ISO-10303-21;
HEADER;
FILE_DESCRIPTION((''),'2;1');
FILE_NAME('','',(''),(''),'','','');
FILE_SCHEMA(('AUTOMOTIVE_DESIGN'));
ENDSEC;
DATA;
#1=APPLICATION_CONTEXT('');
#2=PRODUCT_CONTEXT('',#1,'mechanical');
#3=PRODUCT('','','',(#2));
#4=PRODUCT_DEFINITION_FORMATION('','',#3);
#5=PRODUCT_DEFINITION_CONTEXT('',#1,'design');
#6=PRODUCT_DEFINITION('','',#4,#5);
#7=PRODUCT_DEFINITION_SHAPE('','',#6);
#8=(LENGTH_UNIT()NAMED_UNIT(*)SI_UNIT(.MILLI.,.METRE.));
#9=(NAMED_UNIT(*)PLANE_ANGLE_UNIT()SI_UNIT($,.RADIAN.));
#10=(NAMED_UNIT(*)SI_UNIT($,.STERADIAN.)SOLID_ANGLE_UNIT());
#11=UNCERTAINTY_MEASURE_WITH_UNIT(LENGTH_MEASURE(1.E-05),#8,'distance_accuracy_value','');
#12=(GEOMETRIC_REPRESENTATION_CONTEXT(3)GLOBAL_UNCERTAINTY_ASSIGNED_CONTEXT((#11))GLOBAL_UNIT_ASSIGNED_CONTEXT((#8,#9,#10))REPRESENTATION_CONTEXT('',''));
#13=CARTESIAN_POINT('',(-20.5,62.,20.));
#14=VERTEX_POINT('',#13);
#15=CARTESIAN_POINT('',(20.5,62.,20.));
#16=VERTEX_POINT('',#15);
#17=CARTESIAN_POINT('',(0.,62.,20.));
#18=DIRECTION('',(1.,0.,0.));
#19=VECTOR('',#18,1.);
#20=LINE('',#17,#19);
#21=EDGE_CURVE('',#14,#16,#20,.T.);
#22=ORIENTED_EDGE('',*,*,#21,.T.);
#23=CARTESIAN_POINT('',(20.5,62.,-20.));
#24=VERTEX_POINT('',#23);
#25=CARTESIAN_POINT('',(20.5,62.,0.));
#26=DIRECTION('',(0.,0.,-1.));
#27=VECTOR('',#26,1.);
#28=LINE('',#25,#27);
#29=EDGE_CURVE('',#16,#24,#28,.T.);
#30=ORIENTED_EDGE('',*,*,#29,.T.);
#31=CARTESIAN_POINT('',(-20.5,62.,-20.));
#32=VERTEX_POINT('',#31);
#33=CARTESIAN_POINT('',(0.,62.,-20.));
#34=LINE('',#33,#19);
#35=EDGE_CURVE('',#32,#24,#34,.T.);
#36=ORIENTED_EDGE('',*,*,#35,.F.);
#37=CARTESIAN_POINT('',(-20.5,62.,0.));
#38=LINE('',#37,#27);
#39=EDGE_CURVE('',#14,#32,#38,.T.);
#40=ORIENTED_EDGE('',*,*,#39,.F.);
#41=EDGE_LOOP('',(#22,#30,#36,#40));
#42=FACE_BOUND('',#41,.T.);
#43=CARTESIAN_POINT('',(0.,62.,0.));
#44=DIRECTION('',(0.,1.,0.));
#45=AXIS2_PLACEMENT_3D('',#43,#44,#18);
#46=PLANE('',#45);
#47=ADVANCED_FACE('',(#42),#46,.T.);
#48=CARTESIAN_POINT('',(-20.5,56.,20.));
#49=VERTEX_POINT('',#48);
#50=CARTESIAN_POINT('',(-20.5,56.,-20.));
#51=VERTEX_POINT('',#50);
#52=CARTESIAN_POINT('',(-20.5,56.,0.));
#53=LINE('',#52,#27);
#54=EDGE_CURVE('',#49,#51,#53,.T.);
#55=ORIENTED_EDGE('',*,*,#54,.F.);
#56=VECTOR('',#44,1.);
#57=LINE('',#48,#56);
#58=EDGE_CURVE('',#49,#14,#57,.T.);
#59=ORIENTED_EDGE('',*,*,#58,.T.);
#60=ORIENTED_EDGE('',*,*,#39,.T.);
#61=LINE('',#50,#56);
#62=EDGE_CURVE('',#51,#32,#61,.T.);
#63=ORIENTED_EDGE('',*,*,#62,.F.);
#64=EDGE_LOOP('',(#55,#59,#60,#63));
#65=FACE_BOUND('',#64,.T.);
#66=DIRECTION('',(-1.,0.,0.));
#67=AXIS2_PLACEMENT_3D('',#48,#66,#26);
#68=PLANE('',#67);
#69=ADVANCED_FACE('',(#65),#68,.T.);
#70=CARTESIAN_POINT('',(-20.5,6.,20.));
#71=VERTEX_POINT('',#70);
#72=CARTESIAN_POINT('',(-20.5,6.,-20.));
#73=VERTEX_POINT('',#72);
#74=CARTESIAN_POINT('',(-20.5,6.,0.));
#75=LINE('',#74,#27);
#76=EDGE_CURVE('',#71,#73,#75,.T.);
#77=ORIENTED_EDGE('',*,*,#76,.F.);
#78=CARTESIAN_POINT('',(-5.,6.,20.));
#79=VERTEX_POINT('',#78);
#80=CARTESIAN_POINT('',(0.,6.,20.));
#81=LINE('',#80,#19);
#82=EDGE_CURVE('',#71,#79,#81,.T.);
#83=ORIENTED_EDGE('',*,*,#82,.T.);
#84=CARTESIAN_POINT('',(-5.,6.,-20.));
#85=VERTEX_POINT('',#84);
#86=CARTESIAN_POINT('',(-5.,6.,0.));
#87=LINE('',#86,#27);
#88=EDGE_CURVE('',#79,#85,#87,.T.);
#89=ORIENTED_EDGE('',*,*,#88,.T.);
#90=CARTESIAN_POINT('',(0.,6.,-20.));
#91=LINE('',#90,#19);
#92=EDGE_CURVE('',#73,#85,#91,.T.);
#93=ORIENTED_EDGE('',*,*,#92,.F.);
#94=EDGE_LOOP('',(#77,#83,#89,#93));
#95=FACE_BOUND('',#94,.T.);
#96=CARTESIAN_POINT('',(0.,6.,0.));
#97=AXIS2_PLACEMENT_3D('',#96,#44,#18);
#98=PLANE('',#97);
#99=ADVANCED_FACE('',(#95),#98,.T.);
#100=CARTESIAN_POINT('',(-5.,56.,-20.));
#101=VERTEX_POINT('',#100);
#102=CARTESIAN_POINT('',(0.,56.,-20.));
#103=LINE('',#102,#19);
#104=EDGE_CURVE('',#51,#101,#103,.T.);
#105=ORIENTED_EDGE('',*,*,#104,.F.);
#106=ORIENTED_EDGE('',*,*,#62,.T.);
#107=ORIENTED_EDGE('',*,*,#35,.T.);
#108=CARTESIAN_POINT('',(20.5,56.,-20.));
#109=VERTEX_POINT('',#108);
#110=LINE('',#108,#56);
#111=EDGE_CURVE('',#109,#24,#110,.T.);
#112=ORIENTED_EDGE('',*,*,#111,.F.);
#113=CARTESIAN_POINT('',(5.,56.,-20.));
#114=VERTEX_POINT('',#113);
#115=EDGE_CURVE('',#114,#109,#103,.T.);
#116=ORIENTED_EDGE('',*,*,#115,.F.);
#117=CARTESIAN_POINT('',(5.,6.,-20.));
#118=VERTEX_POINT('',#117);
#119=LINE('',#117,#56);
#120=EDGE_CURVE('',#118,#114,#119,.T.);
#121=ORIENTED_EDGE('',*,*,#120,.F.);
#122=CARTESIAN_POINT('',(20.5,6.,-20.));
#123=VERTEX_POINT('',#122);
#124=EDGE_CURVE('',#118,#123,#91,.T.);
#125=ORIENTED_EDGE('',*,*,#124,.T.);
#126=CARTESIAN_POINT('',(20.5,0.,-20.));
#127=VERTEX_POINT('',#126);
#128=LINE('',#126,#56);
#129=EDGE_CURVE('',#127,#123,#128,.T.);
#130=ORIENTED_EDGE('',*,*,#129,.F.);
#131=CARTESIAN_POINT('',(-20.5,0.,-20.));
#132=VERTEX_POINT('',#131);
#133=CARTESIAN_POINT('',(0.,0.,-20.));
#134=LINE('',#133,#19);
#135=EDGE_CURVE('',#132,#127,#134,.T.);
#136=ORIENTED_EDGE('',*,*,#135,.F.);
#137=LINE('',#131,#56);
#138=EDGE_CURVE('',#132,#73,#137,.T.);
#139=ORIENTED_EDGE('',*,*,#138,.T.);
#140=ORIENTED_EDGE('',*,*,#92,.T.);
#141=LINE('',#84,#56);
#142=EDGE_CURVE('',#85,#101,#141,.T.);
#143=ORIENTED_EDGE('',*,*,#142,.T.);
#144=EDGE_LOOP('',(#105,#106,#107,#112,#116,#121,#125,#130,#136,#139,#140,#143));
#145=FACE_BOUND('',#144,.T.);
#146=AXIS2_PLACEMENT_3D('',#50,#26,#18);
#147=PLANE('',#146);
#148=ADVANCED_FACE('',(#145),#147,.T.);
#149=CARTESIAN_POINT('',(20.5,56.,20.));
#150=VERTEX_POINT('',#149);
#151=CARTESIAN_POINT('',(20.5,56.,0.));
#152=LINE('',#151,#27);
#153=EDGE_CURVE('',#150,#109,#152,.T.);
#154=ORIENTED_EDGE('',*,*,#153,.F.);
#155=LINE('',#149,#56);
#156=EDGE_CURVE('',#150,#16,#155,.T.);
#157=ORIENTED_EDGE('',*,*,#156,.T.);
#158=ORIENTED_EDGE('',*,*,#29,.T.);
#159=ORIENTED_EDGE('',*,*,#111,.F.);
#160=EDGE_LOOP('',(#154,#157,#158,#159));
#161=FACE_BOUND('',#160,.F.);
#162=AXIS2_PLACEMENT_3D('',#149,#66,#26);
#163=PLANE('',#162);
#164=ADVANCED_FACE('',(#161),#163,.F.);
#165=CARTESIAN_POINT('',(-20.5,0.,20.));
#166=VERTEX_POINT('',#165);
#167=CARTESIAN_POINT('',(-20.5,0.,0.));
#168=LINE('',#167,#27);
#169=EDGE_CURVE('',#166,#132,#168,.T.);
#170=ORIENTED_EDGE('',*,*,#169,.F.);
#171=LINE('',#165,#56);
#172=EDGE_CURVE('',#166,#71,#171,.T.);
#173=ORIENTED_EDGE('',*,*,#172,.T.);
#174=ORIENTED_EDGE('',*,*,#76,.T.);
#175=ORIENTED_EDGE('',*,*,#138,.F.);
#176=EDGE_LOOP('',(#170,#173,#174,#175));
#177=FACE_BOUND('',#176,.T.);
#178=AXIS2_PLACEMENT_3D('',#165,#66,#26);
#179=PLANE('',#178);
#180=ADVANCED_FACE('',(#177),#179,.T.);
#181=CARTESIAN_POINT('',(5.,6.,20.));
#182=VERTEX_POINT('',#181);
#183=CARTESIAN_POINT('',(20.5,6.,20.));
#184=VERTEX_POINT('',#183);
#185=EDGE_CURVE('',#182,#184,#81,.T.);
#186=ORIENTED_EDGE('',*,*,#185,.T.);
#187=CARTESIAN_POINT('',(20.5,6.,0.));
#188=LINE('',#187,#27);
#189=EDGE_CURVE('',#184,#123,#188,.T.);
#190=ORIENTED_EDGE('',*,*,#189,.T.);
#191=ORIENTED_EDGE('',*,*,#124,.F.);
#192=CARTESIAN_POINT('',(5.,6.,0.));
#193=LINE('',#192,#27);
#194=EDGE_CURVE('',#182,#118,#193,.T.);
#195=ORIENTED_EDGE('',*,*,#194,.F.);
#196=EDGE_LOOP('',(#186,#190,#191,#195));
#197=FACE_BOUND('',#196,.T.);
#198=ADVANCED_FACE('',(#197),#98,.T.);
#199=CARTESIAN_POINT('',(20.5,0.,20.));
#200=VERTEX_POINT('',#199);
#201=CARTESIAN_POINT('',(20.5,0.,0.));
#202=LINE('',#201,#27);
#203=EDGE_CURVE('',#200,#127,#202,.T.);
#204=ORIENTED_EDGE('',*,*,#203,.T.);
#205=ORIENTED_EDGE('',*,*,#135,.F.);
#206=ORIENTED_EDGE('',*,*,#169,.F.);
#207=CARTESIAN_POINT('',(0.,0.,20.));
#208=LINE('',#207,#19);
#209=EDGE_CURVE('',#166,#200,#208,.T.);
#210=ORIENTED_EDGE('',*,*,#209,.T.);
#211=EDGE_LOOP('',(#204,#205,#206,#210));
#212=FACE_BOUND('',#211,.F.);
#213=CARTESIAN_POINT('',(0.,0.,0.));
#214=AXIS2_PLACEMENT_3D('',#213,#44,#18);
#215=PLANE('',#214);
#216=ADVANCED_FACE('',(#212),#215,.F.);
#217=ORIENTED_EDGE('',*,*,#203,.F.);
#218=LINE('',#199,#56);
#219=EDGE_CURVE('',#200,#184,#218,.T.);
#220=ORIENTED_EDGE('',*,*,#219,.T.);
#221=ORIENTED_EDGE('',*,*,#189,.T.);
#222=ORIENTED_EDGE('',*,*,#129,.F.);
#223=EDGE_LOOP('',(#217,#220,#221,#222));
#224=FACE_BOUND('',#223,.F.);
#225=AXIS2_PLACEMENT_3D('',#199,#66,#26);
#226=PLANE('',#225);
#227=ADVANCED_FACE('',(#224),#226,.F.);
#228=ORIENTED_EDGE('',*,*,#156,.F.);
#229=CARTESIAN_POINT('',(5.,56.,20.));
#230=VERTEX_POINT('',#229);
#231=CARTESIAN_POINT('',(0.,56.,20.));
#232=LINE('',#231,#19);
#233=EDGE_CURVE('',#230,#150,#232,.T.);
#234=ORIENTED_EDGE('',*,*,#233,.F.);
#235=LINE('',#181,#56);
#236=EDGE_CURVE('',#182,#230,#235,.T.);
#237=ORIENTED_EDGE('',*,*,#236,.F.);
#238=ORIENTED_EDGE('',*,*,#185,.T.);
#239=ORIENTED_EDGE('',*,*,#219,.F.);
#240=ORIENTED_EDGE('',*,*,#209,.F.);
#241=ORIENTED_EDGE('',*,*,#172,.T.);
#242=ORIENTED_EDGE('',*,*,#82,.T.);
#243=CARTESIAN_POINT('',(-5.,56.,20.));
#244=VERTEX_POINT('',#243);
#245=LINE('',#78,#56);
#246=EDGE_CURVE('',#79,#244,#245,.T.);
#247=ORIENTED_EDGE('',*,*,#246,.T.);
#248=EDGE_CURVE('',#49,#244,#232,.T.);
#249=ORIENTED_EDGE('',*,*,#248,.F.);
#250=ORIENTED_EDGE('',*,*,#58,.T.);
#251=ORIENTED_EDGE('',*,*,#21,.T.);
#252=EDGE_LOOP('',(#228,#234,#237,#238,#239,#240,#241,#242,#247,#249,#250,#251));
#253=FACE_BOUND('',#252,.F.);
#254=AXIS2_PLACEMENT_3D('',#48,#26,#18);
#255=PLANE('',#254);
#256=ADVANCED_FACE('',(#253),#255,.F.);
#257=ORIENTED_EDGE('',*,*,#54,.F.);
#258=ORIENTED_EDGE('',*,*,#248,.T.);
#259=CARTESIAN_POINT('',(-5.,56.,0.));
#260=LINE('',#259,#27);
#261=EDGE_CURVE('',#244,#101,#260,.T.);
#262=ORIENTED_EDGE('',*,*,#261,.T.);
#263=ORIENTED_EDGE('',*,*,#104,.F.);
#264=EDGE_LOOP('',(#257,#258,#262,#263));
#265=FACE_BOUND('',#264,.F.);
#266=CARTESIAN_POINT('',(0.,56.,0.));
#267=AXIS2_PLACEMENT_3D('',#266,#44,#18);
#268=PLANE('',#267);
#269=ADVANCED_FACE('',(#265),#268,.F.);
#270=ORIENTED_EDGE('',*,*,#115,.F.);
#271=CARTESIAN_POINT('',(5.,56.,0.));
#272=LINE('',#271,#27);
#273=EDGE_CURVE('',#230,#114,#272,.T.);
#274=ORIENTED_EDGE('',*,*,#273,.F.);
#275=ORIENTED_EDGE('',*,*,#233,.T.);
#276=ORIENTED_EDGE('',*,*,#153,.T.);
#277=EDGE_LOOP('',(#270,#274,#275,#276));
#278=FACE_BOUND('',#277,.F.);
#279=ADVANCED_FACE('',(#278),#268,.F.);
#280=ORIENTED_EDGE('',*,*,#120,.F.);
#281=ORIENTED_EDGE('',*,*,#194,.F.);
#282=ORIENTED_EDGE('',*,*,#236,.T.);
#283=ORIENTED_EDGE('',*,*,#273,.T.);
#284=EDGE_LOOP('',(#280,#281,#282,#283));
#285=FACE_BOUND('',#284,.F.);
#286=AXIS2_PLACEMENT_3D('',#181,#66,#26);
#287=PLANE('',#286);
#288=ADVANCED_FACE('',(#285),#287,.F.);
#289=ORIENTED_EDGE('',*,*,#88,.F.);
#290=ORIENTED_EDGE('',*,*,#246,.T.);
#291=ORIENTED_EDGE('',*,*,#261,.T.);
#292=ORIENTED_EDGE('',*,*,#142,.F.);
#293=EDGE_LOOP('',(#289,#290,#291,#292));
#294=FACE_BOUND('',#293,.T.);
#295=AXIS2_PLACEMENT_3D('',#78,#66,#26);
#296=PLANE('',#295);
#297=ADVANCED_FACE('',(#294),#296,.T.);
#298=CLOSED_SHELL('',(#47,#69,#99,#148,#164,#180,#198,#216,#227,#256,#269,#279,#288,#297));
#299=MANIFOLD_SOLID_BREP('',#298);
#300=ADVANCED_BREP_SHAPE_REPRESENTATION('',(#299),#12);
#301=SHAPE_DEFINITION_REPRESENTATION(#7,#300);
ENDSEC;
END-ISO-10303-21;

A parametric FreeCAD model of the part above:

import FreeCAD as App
import Part
import Sketcher
from FreeCAD import Vector

doc = App.newDocument("Part")
body = doc.addObject("PartDesign::Body", "Body")

# Sketch on XZ plane
sketch1 = body.newObject("Sketcher::SketchObject", "Sketch")
sketch1.AttachmentSupport = (doc.getObject("XZ_Plane"), [""])
sketch1.MapMode = "FlatFace"
sketch1.addGeometry(Part.LineSegment(Vector(-20, -20, 0), Vector(-20, 20, 0)), False)
sketch1.addGeometry(Part.LineSegment(Vector(-20, 20, 0), Vector(20, 20, 0)), False)
sketch1.addGeometry(Part.LineSegment(Vector(20, 20, 0), Vector(20, -20, 0)), False)
sketch1.addGeometry(Part.LineSegment(Vector(20, -20, 0), Vector(-20, -20, 0)), False)
sketch1.addConstraint(Sketcher.Constraint("Coincident", 0, 2, 1, 1))
sketch1.addConstraint(Sketcher.Constraint("Coincident", 1, 2, 2, 1))
sketch1.addConstraint(Sketcher.Constraint("Coincident", 2, 2, 3, 1))
sketch1.addConstraint(Sketcher.Constraint("Coincident", 3, 2, 0, 1))
sketch1.addConstraint(Sketcher.Constraint("Vertical", 0))
sketch1.addConstraint(Sketcher.Constraint("Horizontal", 1))
sketch1.addConstraint(Sketcher.Constraint("Vertical", 2))
sketch1.addConstraint(Sketcher.Constraint("Horizontal", 3))
sketch1.addConstraint(Sketcher.Constraint("Symmetric", 0, 2, 2, 2, -1, 1))
sketch1.addConstraint(Sketcher.Constraint("DistanceX", 1, 1, 1, 2, 41.0))
sketch1.addConstraint(Sketcher.Constraint("DistanceY", 0, 1, 0, 2, 40.0))
pad1 = body.newObject("PartDesign::Pad", "Pad")
pad1.Profile = sketch1
pad1.Length = 6
pad1.Reversed = True

# Sketch on XZ plane
sketch2 = body.newObject("Sketcher::SketchObject", "Sketch001")
sketch2.AttachmentSupport = (doc.getObject("XZ_Plane"), [""])
sketch2.MapMode = "FlatFace"
sketch2.AttachmentOffset = App.Placement(Vector(0, 0, -6), App.Rotation())
sketch2.addGeometry(Part.LineSegment(Vector(-5, -20, 0), Vector(-5, 20, 0)), False)
sketch2.addGeometry(Part.LineSegment(Vector(-5, 20, 0), Vector(5, 20, 0)), False)
sketch2.addGeometry(Part.LineSegment(Vector(5, 20, 0), Vector(5, -20, 0)), False)
sketch2.addGeometry(Part.LineSegment(Vector(5, -20, 0), Vector(-5, -20, 0)), False)
sketch2.addConstraint(Sketcher.Constraint("Coincident", 0, 2, 1, 1))
sketch2.addConstraint(Sketcher.Constraint("Coincident", 1, 2, 2, 1))
sketch2.addConstraint(Sketcher.Constraint("Coincident", 2, 2, 3, 1))
sketch2.addConstraint(Sketcher.Constraint("Coincident", 3, 2, 0, 1))
sketch2.addConstraint(Sketcher.Constraint("Vertical", 0))
sketch2.addConstraint(Sketcher.Constraint("Horizontal", 1))
sketch2.addConstraint(Sketcher.Constraint("Vertical", 2))
sketch2.addConstraint(Sketcher.Constraint("Horizontal", 3))
sketch2.addConstraint(Sketcher.Constraint("Symmetric", 0, 2, 2, 2, -1, 1))
sketch2.addConstraint(Sketcher.Constraint("DistanceX", 1, 1, 1, 2, 10.0))
sketch2.addConstraint(Sketcher.Constraint("DistanceY", 0, 1, 0, 2, 40.0))
pad2 = body.newObject("PartDesign::Pad", "Pad001")
pad2.Profile = sketch2
pad2.Length = 50
pad2.Reversed = True

# Sketch on XZ plane
sketch3 = body.newObject("Sketcher::SketchObject", "Sketch002")
sketch3.AttachmentSupport = (doc.getObject("XZ_Plane"), [""])
sketch3.MapMode = "FlatFace"
sketch3.AttachmentOffset = App.Placement(Vector(0, 0, -56), App.Rotation())
sketch3.addGeometry(Part.LineSegment(Vector(-20, -20, 0), Vector(-20, 20, 0)), False)
sketch3.addGeometry(Part.LineSegment(Vector(-20, 20, 0), Vector(20, 20, 0)), False)
sketch3.addGeometry(Part.LineSegment(Vector(20, 20, 0), Vector(20, -20, 0)), False)
sketch3.addGeometry(Part.LineSegment(Vector(20, -20, 0), Vector(-20, -20, 0)), False)
sketch3.addConstraint(Sketcher.Constraint("Coincident", 0, 2, 1, 1))
sketch3.addConstraint(Sketcher.Constraint("Coincident", 1, 2, 2, 1))
sketch3.addConstraint(Sketcher.Constraint("Coincident", 2, 2, 3, 1))
sketch3.addConstraint(Sketcher.Constraint("Coincident", 3, 2, 0, 1))
sketch3.addConstraint(Sketcher.Constraint("Vertical", 0))
sketch3.addConstraint(Sketcher.Constraint("Horizontal", 1))
sketch3.addConstraint(Sketcher.Constraint("Vertical", 2))
sketch3.addConstraint(Sketcher.Constraint("Horizontal", 3))
sketch3.addConstraint(Sketcher.Constraint("Symmetric", 0, 2, 2, 2, -1, 1))
sketch3.addConstraint(Sketcher.Constraint("DistanceX", 1, 1, 1, 2, 41.0))
sketch3.addConstraint(Sketcher.Constraint("DistanceY", 0, 1, 0, 2, 40.0))
pad3 = body.newObject("PartDesign::Pad", "Pad002")
pad3.Profile = sketch3
pad3.Length = 6
pad3.Reversed = True

doc.recompute()
